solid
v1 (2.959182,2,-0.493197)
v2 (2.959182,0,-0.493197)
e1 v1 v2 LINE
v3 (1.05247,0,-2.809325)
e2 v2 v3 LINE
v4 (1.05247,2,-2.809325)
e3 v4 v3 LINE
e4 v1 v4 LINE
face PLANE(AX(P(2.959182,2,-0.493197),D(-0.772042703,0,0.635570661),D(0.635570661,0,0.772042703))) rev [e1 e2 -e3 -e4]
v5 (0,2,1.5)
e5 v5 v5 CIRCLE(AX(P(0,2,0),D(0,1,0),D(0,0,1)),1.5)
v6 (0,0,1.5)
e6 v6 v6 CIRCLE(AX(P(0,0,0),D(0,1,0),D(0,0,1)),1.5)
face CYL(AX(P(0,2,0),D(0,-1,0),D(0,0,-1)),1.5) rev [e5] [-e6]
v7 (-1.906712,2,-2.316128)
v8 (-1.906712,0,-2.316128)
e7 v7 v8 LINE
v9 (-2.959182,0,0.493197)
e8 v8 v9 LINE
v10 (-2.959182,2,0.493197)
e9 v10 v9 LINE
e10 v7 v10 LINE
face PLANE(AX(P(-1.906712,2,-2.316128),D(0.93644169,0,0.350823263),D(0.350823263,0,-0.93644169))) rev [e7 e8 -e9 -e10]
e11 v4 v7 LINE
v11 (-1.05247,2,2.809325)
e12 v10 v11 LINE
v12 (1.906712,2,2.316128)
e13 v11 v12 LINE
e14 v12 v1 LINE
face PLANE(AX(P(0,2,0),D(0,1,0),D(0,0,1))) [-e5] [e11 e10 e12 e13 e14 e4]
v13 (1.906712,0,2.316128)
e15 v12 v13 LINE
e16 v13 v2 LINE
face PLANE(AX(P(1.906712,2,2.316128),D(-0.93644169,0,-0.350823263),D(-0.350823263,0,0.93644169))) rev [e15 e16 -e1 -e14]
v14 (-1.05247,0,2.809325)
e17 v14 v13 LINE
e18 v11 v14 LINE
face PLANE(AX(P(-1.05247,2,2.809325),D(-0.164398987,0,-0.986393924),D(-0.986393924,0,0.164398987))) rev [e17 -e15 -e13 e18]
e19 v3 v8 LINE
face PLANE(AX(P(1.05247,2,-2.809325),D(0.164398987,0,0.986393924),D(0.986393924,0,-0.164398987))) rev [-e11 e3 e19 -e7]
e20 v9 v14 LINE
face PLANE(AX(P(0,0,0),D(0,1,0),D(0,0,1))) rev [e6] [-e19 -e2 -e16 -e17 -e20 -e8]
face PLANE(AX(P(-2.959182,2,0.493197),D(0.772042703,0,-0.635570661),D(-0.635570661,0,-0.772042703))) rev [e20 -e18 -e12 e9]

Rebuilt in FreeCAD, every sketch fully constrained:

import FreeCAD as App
import Part
import Sketcher
from FreeCAD import Vector
Q = App.Units.Quantity

doc = App.newDocument("Part")
params = doc.addObject("Spreadsheet::Sheet", "Params")
for row, (alias, value) in enumerate([
    ("sketch1_diameter", "3 mm"),
    ("sketch1_length", "3 mm"),
    ("pad1_length", "2 mm"),
], start=1):
    params.set(f"A{row}", alias)
    params.set(f"B{row}", "=" + value)
    params.setAlias(f"B{row}", alias)

body = doc.addObject("PartDesign::Body", "Body")

sketch1 = body.newObject("Sketcher::SketchObject", "Sketch")
sketch1.AttachmentSupport = (doc.getObject("XZ_Plane"), [""])
sketch1.MapMode = "FlatFace"
sketch1.addGeometry(Part.LineSegment(Vector(3, -0.5, 0), Vector(1.1, -2.8, 0)), False)
sketch1.addGeometry(Part.LineSegment(Vector(1.1, -2.8, 0), Vector(-1.9, -2.3, 0)), False)
sketch1.addGeometry(Part.LineSegment(Vector(-1.9, -2.3, 0), Vector(-3, 0.5, 0)), False)
sketch1.addGeometry(Part.LineSegment(Vector(-3, 0.5, 0), Vector(-1.1, 2.8, 0)), False)
sketch1.addGeometry(Part.LineSegment(Vector(-1.1, 2.8, 0), Vector(1.9, 2.3, 0)), False)
sketch1.addGeometry(Part.LineSegment(Vector(1.9, 2.3, 0), Vector(3, -0.5, 0)), False)
sketch1.addGeometry(Part.Circle(Vector(0, 0, 0), Vector(0, 0, 1), 1.5), False)
sketch1.addConstraint(Sketcher.Constraint("Coincident", 0, 2, 1, 1))
sketch1.addConstraint(Sketcher.Constraint("Coincident", 1, 2, 2, 1))
sketch1.addConstraint(Sketcher.Constraint("Coincident", 2, 2, 3, 1))
sketch1.addConstraint(Sketcher.Constraint("Coincident", 3, 2, 4, 1))
sketch1.addConstraint(Sketcher.Constraint("Coincident", 4, 2, 5, 1))
sketch1.addConstraint(Sketcher.Constraint("Coincident", 5, 2, 0, 1))
sketch1.addConstraint(Sketcher.Constraint("Coincident", 6, 3, -1, 1))
sketch1.addConstraint(Sketcher.Constraint("Symmetric", 0, 2, 3, 2, -1, 1))
sketch1.addConstraint(Sketcher.Constraint("Symmetric", 1, 2, 4, 2, -1, 1))
sketch1.addConstraint(Sketcher.Constraint("Symmetric", 2, 2, 5, 2, -1, 1))
sketch1.addConstraint(Sketcher.Constraint("Equal", 0, 1))
sketch1.addConstraint(Sketcher.Constraint("Equal", 1, 2))
sketch1.addConstraint(Sketcher.Constraint("Diameter", 6, Q("3 mm")))
sketch1.addConstraint(Sketcher.Constraint("Distance", 0, Q("3 mm")))
sketch1.addConstraint(Sketcher.Constraint("DistanceX", -1, 1, 0, 2, Q("1.05247 mm")))
sketch1.addConstraint(Sketcher.Constraint("DistanceX", 1, 2, -1, 1, Q("1.906712 mm")))
sketch1.addConstraint(Sketcher.Constraint("DistanceY", 1, 2, -1, 1, Q("2.316128 mm")))
sketch1.setExpression("Constraints[12]", "Params.sketch1_diameter")
sketch1.setExpression("Constraints[13]", "Params.sketch1_length")
pad1 = body.newObject("PartDesign::Pad", "Pad")
pad1.Profile = sketch1
pad1.setExpression("Length", "Params.pad1_length")
pad1.Reversed = True

doc.recompute()
